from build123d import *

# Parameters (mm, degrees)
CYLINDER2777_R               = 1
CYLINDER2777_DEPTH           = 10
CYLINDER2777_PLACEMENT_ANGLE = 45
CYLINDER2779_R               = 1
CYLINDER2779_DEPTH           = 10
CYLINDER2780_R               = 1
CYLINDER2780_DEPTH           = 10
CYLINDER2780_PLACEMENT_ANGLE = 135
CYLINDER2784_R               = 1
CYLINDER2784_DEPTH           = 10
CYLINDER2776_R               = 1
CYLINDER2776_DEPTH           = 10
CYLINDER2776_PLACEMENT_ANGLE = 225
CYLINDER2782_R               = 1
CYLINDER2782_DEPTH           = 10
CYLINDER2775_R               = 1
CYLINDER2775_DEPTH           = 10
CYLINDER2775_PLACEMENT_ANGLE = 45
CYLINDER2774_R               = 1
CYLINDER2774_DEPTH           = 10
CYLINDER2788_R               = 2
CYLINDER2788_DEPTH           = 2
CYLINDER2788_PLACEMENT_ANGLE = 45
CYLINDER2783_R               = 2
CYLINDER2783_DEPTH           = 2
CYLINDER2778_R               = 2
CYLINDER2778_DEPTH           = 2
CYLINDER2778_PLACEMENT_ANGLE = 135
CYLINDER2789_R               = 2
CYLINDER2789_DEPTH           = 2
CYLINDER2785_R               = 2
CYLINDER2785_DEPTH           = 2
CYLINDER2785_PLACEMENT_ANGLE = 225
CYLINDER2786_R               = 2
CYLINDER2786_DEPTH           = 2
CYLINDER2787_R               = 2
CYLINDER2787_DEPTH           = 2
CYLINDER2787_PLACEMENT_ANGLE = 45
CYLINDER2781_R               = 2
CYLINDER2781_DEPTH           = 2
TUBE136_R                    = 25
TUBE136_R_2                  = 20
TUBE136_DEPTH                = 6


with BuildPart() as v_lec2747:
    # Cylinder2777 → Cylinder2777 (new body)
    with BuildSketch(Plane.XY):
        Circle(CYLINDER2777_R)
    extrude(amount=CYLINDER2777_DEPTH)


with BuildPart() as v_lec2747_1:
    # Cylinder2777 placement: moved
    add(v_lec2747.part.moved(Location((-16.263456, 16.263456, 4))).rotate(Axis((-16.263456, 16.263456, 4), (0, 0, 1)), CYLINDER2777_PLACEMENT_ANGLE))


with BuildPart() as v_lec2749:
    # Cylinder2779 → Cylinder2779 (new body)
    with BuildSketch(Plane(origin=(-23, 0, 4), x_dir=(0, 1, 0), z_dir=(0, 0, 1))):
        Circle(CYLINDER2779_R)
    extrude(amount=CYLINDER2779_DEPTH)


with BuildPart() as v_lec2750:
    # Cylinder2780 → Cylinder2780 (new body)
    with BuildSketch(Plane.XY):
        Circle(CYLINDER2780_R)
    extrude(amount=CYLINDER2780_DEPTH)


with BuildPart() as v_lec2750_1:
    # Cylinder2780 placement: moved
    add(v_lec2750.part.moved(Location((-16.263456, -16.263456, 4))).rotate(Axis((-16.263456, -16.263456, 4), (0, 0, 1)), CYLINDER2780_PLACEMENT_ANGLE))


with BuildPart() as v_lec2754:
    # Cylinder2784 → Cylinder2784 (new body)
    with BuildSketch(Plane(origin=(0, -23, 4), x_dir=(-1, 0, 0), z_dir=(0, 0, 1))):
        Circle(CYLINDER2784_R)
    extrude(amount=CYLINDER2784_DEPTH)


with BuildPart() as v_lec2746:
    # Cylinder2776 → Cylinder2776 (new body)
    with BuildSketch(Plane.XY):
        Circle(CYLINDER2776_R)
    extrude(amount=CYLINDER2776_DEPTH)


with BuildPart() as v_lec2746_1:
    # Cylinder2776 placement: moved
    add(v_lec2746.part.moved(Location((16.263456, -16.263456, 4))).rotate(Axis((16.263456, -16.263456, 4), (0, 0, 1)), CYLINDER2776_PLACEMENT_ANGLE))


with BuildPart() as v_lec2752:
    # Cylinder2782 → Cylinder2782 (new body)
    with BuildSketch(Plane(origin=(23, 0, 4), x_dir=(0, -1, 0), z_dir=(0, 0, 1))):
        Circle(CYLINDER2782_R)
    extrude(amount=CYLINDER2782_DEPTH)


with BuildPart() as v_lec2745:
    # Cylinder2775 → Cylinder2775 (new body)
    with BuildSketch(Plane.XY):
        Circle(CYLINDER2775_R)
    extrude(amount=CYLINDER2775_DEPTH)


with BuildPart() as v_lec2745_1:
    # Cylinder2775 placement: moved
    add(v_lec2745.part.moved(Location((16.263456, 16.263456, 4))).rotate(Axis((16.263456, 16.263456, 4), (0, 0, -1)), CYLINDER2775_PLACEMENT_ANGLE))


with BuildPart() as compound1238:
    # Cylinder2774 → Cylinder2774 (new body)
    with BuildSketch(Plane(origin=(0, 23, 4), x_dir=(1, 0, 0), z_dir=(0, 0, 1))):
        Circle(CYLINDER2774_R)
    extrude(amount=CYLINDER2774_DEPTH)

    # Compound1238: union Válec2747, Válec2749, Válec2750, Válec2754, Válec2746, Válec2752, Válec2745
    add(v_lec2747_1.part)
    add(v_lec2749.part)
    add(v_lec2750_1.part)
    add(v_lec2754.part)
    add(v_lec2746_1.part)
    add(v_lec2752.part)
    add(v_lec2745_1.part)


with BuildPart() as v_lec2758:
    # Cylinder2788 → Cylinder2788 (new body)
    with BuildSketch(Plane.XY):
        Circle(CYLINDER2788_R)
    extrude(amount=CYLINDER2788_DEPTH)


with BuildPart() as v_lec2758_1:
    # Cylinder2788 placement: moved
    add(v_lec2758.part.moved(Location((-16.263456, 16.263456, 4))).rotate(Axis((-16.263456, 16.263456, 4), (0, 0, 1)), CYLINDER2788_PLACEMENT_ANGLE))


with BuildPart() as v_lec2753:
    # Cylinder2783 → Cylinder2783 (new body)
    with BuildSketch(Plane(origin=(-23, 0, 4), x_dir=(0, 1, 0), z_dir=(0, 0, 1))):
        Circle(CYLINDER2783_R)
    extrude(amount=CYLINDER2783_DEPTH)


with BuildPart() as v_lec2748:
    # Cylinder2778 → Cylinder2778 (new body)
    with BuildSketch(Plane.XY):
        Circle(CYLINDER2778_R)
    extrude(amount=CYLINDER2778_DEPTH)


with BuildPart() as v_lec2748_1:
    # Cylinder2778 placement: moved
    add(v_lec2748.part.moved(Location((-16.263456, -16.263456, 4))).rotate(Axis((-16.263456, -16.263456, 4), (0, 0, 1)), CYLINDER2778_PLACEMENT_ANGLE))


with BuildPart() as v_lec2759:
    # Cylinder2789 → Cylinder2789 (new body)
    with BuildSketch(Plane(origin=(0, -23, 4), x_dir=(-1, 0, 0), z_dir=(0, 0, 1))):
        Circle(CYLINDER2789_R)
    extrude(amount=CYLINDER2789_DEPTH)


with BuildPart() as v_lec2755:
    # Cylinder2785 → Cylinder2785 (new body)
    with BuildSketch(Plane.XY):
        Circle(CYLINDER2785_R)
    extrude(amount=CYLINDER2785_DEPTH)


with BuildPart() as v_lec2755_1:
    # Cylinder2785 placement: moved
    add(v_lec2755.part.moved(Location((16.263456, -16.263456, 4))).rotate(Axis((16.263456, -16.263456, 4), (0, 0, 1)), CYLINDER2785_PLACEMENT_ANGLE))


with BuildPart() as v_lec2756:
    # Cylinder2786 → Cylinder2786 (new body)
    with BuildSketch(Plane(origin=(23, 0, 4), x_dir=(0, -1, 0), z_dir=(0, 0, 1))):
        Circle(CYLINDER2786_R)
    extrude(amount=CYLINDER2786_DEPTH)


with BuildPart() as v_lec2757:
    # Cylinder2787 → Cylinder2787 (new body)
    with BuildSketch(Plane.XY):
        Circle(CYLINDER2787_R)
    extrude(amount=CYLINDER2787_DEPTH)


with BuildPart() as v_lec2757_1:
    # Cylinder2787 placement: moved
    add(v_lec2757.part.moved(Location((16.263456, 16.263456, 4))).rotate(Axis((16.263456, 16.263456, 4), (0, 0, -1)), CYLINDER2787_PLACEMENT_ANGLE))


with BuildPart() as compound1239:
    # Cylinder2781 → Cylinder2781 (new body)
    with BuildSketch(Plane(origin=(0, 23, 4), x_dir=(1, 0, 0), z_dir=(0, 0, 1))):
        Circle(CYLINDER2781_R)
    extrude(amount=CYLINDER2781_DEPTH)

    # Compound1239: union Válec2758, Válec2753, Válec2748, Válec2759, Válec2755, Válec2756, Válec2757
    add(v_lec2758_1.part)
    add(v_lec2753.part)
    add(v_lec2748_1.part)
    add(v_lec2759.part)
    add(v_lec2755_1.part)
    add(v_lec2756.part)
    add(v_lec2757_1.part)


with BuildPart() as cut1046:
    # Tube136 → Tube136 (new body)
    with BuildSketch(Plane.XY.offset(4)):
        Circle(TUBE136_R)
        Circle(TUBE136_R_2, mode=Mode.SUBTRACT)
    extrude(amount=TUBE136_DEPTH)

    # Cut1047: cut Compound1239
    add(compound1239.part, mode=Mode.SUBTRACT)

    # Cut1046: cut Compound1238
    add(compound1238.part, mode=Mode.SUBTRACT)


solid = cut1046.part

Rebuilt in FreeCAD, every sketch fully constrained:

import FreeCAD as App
import Part
import Sketcher
Q = App.Units.Quantity

doc = App.newDocument("Part")
params = doc.addObject("Spreadsheet::Sheet", "Params")
for row, (alias, value) in enumerate([
    ("sketch1_diameter", "2 mm"),
    ("pad1_length", "10 mm"),
    ("sketch2_diameter", "2 mm"),
    ("pad2_length", "10 mm"),
    ("sketch3_diameter", "2 mm"),
    ("pad3_length", "10 mm"),
    ("sketch4_diameter", "2 mm"),
    ("pad4_length", "10 mm"),
    ("sketch5_diameter", "2 mm"),
    ("pad5_length", "10 mm"),
    ("sketch6_diameter", "2 mm"),
    ("pad6_length", "10 mm"),
    ("sketch7_diameter", "2 mm"),
    ("pad7_length", "10 mm"),
    ("sketch8_diameter", "2 mm"),
    ("pad8_length", "10 mm"),
    ("sketch9_diameter", "4 mm"),
    ("pad9_length", "2 mm"),
    ("sketch10_diameter", "4 mm"),
    ("pad10_length", "2 mm"),
    ("sketch11_diameter", "4 mm"),
    ("pad11_length", "2 mm"),
    ("sketch12_diameter", "4 mm"),
    ("pad12_length", "2 mm"),
    ("sketch13_diameter", "4 mm"),
    ("pad13_length", "2 mm"),
    ("sketch14_diameter", "4 mm"),
    ("pad14_length", "2 mm"),
    ("sketch15_diameter", "4 mm"),
    ("pad15_length", "2 mm"),
    ("sketch16_diameter", "4 mm"),
    ("pad16_length", "2 mm"),
    ("sketch17_diameter", "50 mm"),
    ("sketch17_diameter2", "40 mm"),
    ("pad17_length", "6 mm"),
], start=1):
    params.set(f"A{row}", alias)
    params.set(f"B{row}", "=" + value)
    params.setAlias(f"B{row}", alias)

body = doc.addObject("PartDesign::Body", "Body")

sketch1 = body.newObject("Sketcher::SketchObject", "Sketch")
sketch1.AttachmentSupport = (doc.getObject("XY_Plane"), [""])
sketch1.MapMode = "FlatFace"
sketch1.addGeometry(Part.Circle(App.Vector(0, 0, 0), App.Vector(0, 0, 1), 1), False)
sketch1.addConstraint([
    Sketcher.Constraint("Coincident", 0, 3, -1, 1),
    Sketcher.Constraint("Diameter", 0, Q("2 mm")),
])
sketch1.setExpression("Constraints[1]", "Params.sketch1_diameter")
pad1 = body.newObject("PartDesign::Pad", "Pad")
pad1.Profile = sketch1
pad1.setExpression("Length", "Params.pad1_length")
body2 = doc.addObject("PartDesign::Body", "Body001")
doc.recompute()

body.Placement = App.Placement(App.Vector(-16.263456, 16.263456, 4), App.Rotation(App.Vector(0, 0, 1), 45))
boolean = body2.newObject("PartDesign::Boolean", "Boolean")
boolean.Type = "Fuse"
boolean.addObjects([body])
body3 = doc.addObject("PartDesign::Body", "Body002")

sketch2 = body3.newObject("Sketcher::SketchObject", "Sketch001")
sketch2.AttachmentSupport = (doc.getObject("XY_Plane002"), [""])
sketch2.MapMode = "FlatFace"
sketch2.AttachmentOffset = App.Placement(App.Vector(0, 0, 4), App.Rotation())
sketch2.addGeometry(Part.Circle(App.Vector(-23, 0, 0), App.Vector(0, 0, 1), 1), False)
sketch2.addConstraint([
    Sketcher.Constraint("PointOnObject", 0, 3, -1),
    Sketcher.Constraint("Diameter", 0, Q("2 mm")),
    Sketcher.Constraint("DistanceX", 0, 3, -1, 1, Q("23 mm")),
])
sketch2.setExpression("Constraints[1]", "Params.sketch2_diameter")
pad2 = body3.newObject("PartDesign::Pad", "Pad001")
pad2.Profile = sketch2
pad2.setExpression("Length", "Params.pad2_length")
body4 = doc.addObject("PartDesign::Body", "Body003")

sketch3 = body4.newObject("Sketcher::SketchObject", "Sketch002")
sketch3.AttachmentSupport = (doc.getObject("XY_Plane003"), [""])
sketch3.MapMode = "FlatFace"
sketch3.addGeometry(Part.Circle(App.Vector(0, 0, 0), App.Vector(0, 0, 1), 1), False)
sketch3.addConstraint([
    Sketcher.Constraint("Coincident", 0, 3, -1, 1),
    Sketcher.Constraint("Diameter", 0, Q("2 mm")),
])
sketch3.setExpression("Constraints[1]", "Params.sketch3_diameter")
pad3 = body4.newObject("PartDesign::Pad", "Pad002")
pad3.Profile = sketch3
pad3.setExpression("Length", "Params.pad3_length")
body5 = doc.addObject("PartDesign::Body", "Body004")
doc.recompute()

body4.Placement = App.Placement(App.Vector(-16.263456, -16.263456, 4), App.Rotation(App.Vector(0, 0, 1), 135))
boolean2 = body5.newObject("PartDesign::Boolean", "Boolean001")
boolean2.Type = "Fuse"
boolean2.addObjects([body4])
body6 = doc.addObject("PartDesign::Body", "Body005")

sketch4 = body6.newObject("Sketcher::SketchObject", "Sketch003")
sketch4.AttachmentSupport = (doc.getObject("XY_Plane005"), [""])
sketch4.MapMode = "FlatFace"
sketch4.AttachmentOffset = App.Placement(App.Vector(0, 0, 4), App.Rotation())
sketch4.addGeometry(Part.Circle(App.Vector(0, -23, 0), App.Vector(0, 0, 1), 1), False)
sketch4.addConstraint([
    Sketcher.Constraint("PointOnObject", 0, 3, -2),
    Sketcher.Constraint("Diameter", 0, Q("2 mm")),
    Sketcher.Constraint("DistanceY", 0, 3, -1, 1, Q("23 mm")),
])
sketch4.setExpression("Constraints[1]", "Params.sketch4_diameter")
pad4 = body6.newObject("PartDesign::Pad", "Pad003")
pad4.Profile = sketch4
pad4.setExpression("Length", "Params.pad4_length")
body7 = doc.addObject("PartDesign::Body", "Body006")

sketch5 = body7.newObject("Sketcher::SketchObject", "Sketch004")
sketch5.AttachmentSupport = (doc.getObject("XY_Plane006"), [""])
sketch5.MapMode = "FlatFace"
sketch5.addGeometry(Part.Circle(App.Vector(0, 0, 0), App.Vector(0, 0, 1), 1), False)
sketch5.addConstraint([
    Sketcher.Constraint("Coincident", 0, 3, -1, 1),
    Sketcher.Constraint("Diameter", 0, Q("2 mm")),
])
sketch5.setExpression("Constraints[1]", "Params.sketch5_diameter")
pad5 = body7.newObject("PartDesign::Pad", "Pad004")
pad5.Profile = sketch5
pad5.setExpression("Length", "Params.pad5_length")
body8 = doc.addObject("PartDesign::Body", "Body007")
doc.recompute()

body7.Placement = App.Placement(App.Vector(16.263456, -16.263456, 4), App.Rotation(App.Vector(0, 0, 1), 225))
boolean3 = body8.newObject("PartDesign::Boolean", "Boolean002")
boolean3.Type = "Fuse"
boolean3.addObjects([body7])
body9 = doc.addObject("PartDesign::Body", "Body008")

sketch6 = body9.newObject("Sketcher::SketchObject", "Sketch005")
sketch6.AttachmentSupport = (doc.getObject("XY_Plane008"), [""])
sketch6.MapMode = "FlatFace"
sketch6.AttachmentOffset = App.Placement(App.Vector(0, 0, 4), App.Rotation())
sketch6.addGeometry(Part.Circle(App.Vector(23, 0, 0), App.Vector(0, 0, 1), 1), False)
sketch6.addConstraint([
    Sketcher.Constraint("PointOnObject", 0, 3, -1),
    Sketcher.Constraint("Diameter", 0, Q("2 mm")),
    Sketcher.Constraint("DistanceX", -1, 1, 0, 3, Q("23 mm")),
])
sketch6.setExpression("Constraints[1]", "Params.sketch6_diameter")
pad6 = body9.newObject("PartDesign::Pad", "Pad005")
pad6.Profile = sketch6
pad6.setExpression("Length", "Params.pad6_length")
body10 = doc.addObject("PartDesign::Body", "Body009")

sketch7 = body10.newObject("Sketcher::SketchObject", "Sketch006")
sketch7.AttachmentSupport = (doc.getObject("XY_Plane009"), [""])
sketch7.MapMode = "FlatFace"
sketch7.addGeometry(Part.Circle(App.Vector(0, 0, 0), App.Vector(0, 0, 1), 1), False)
sketch7.addConstraint([
    Sketcher.Constraint("Coincident", 0, 3, -1, 1),
    Sketcher.Constraint("Diameter", 0, Q("2 mm")),
])
sketch7.setExpression("Constraints[1]", "Params.sketch7_diameter")
pad7 = body10.newObject("PartDesign::Pad", "Pad006")
pad7.Profile = sketch7
pad7.setExpression("Length", "Params.pad7_length")
body11 = doc.addObject("PartDesign::Body", "Body010")
doc.recompute()

body10.Placement = App.Placement(App.Vector(16.263456, 16.263456, 4), App.Rotation(App.Vector(0, 0, -1), 45))
boolean4 = body11.newObject("PartDesign::Boolean", "Boolean003")
boolean4.Type = "Fuse"
boolean4.addObjects([body10])
body12 = doc.addObject("PartDesign::Body", "Body011")
body12.AllowCompound = True

sketch8 = body12.newObject("Sketcher::SketchObject", "Sketch007")
sketch8.AttachmentSupport = (doc.getObject("XY_Plane011"), [""])
sketch8.MapMode = "FlatFace"
sketch8.AttachmentOffset = App.Placement(App.Vector(0, 0, 4), App.Rotation())
sketch8.addGeometry(Part.Circle(App.Vector(0, 23, 0), App.Vector(0, 0, 1), 1), False)
sketch8.addConstraint([
    Sketcher.Constraint("PointOnObject", 0, 3, -2),
    Sketcher.Constraint("Diameter", 0, Q("2 mm")),
    Sketcher.Constraint("DistanceY", -1, 1, 0, 3, Q("23 mm")),
])
sketch8.setExpression("Constraints[1]", "Params.sketch8_diameter")
pad8 = body12.newObject("PartDesign::Pad", "Pad007")
pad8.Profile = sketch8
pad8.setExpression("Length", "Params.pad8_length")
doc.recompute()

boolean5 = body12.newObject("PartDesign::Boolean", "Boolean004")
boolean5.Type = "Fuse"
boolean5.addObjects([body2])
doc.recompute()

boolean6 = body12.newObject("PartDesign::Boolean", "Boolean005")
boolean6.Type = "Fuse"
boolean6.addObjects([body3])
doc.recompute()

boolean7 = body12.newObject("PartDesign::Boolean", "Boolean006")
boolean7.Type = "Fuse"
boolean7.addObjects([body5])
doc.recompute()

boolean8 = body12.newObject("PartDesign::Boolean", "Boolean007")
boolean8.Type = "Fuse"
boolean8.addObjects([body6])
doc.recompute()

boolean9 = body12.newObject("PartDesign::Boolean", "Boolean008")
boolean9.Type = "Fuse"
boolean9.addObjects([body8])
doc.recompute()

boolean10 = body12.newObject("PartDesign::Boolean", "Boolean009")
boolean10.Type = "Fuse"
boolean10.addObjects([body9])
doc.recompute()

boolean11 = body12.newObject("PartDesign::Boolean", "Boolean010")
boolean11.Type = "Fuse"
boolean11.addObjects([body11])
body13 = doc.addObject("PartDesign::Body", "Body012")

sketch9 = body13.newObject("Sketcher::SketchObject", "Sketch008")
sketch9.AttachmentSupport = (doc.getObject("XY_Plane012"), [""])
sketch9.MapMode = "FlatFace"
sketch9.addGeometry(Part.Circle(App.Vector(0, 0, 0), App.Vector(0, 0, 1), 2), False)
sketch9.addConstraint([
    Sketcher.Constraint("Coincident", 0, 3, -1, 1),
    Sketcher.Constraint("Diameter", 0, Q("4 mm")),
])
sketch9.setExpression("Constraints[1]", "Params.sketch9_diameter")
pad9 = body13.newObject("PartDesign::Pad", "Pad008")
pad9.Profile = sketch9
pad9.setExpression("Length", "Params.pad9_length")
body14 = doc.addObject("PartDesign::Body", "Body013")
doc.recompute()

body13.Placement = App.Placement(App.Vector(-16.263456, 16.263456, 4), App.Rotation(App.Vector(0, 0, 1), 45))
boolean12 = body14.newObject("PartDesign::Boolean", "Boolean011")
boolean12.Type = "Fuse"
boolean12.addObjects([body13])
body15 = doc.addObject("PartDesign::Body", "Body014")

sketch10 = body15.newObject("Sketcher::SketchObject", "Sketch009")
sketch10.AttachmentSupport = (doc.getObject("XY_Plane014"), [""])
sketch10.MapMode = "FlatFace"
sketch10.AttachmentOffset = App.Placement(App.Vector(0, 0, 4), App.Rotation())
sketch10.addGeometry(Part.Circle(App.Vector(-23, 0, 0), App.Vector(0, 0, 1), 2), False)
sketch10.addConstraint([
    Sketcher.Constraint("PointOnObject", 0, 3, -1),
    Sketcher.Constraint("Diameter", 0, Q("4 mm")),
    Sketcher.Constraint("DistanceX", 0, 3, -1, 1, Q("23 mm")),
])
sketch10.setExpression("Constraints[1]", "Params.sketch10_diameter")
pad10 = body15.newObject("PartDesign::Pad", "Pad009")
pad10.Profile = sketch10
pad10.setExpression("Length", "Params.pad10_length")
body16 = doc.addObject("PartDesign::Body", "Body015")

sketch11 = body16.newObject("Sketcher::SketchObject", "Sketch010")
sketch11.AttachmentSupport = (doc.getObject("XY_Plane015"), [""])
sketch11.MapMode = "FlatFace"
sketch11.addGeometry(Part.Circle(App.Vector(0, 0, 0), App.Vector(0, 0, 1), 2), False)
sketch11.addConstraint([
    Sketcher.Constraint("Coincident", 0, 3, -1, 1),
    Sketcher.Constraint("Diameter", 0, Q("4 mm")),
])
sketch11.setExpression("Constraints[1]", "Params.sketch11_diameter")
pad11 = body16.newObject("PartDesign::Pad", "Pad010")
pad11.Profile = sketch11
pad11.setExpression("Length", "Params.pad11_length")
body17 = doc.addObject("PartDesign::Body", "Body016")
doc.recompute()

body16.Placement = App.Placement(App.Vector(-16.263456, -16.263456, 4), App.Rotation(App.Vector(0, 0, 1), 135))
boolean13 = body17.newObject("PartDesign::Boolean", "Boolean012")
boolean13.Type = "Fuse"
boolean13.addObjects([body16])
body18 = doc.addObject("PartDesign::Body", "Body017")

sketch12 = body18.newObject("Sketcher::SketchObject", "Sketch011")
sketch12.AttachmentSupport = (doc.getObject("XY_Plane017"), [""])
sketch12.MapMode = "FlatFace"
sketch12.AttachmentOffset = App.Placement(App.Vector(0, 0, 4), App.Rotation())
sketch12.addGeometry(Part.Circle(App.Vector(0, -23, 0), App.Vector(0, 0, 1), 2), False)
sketch12.addConstraint([
    Sketcher.Constraint("PointOnObject", 0, 3, -2),
    Sketcher.Constraint("Diameter", 0, Q("4 mm")),
    Sketcher.Constraint("DistanceY", 0, 3, -1, 1, Q("23 mm")),
])
sketch12.setExpression("Constraints[1]", "Params.sketch12_diameter")
pad12 = body18.newObject("PartDesign::Pad", "Pad011")
pad12.Profile = sketch12
pad12.setExpression("Length", "Params.pad12_length")
body19 = doc.addObject("PartDesign::Body", "Body018")

sketch13 = body19.newObject("Sketcher::SketchObject", "Sketch012")
sketch13.AttachmentSupport = (doc.getObject("XY_Plane018"), [""])
sketch13.MapMode = "FlatFace"
sketch13.addGeometry(Part.Circle(App.Vector(0, 0, 0), App.Vector(0, 0, 1), 2), False)
sketch13.addConstraint([
    Sketcher.Constraint("Coincident", 0, 3, -1, 1),
    Sketcher.Constraint("Diameter", 0, Q("4 mm")),
])
sketch13.setExpression("Constraints[1]", "Params.sketch13_diameter")
pad13 = body19.newObject("PartDesign::Pad", "Pad012")
pad13.Profile = sketch13
pad13.setExpression("Length", "Params.pad13_length")
body20 = doc.addObject("PartDesign::Body", "Body019")
doc.recompute()

body19.Placement = App.Placement(App.Vector(16.263456, -16.263456, 4), App.Rotation(App.Vector(0, 0, 1), 225))
boolean14 = body20.newObject("PartDesign::Boolean", "Boolean013")
boolean14.Type = "Fuse"
boolean14.addObjects([body19])
body21 = doc.addObject("PartDesign::Body", "Body020")

sketch14 = body21.newObject("Sketcher::SketchObject", "Sketch013")
sketch14.AttachmentSupport = (doc.getObject("XY_Plane020"), [""])
sketch14.MapMode = "FlatFace"
sketch14.AttachmentOffset = App.Placement(App.Vector(0, 0, 4), App.Rotation())
sketch14.addGeometry(Part.Circle(App.Vector(23, 0, 0), App.Vector(0, 0, 1), 2), False)
sketch14.addConstraint([
    Sketcher.Constraint("PointOnObject", 0, 3, -1),
    Sketcher.Constraint("Diameter", 0, Q("4 mm")),
    Sketcher.Constraint("DistanceX", -1, 1, 0, 3, Q("23 mm")),
])
sketch14.setExpression("Constraints[1]", "Params.sketch14_diameter")
pad14 = body21.newObject("PartDesign::Pad", "Pad013")
pad14.Profile = sketch14
pad14.setExpression("Length", "Params.pad14_length")
body22 = doc.addObject("PartDesign::Body", "Body021")

sketch15 = body22.newObject("Sketcher::SketchObject", "Sketch014")
sketch15.AttachmentSupport = (doc.getObject("XY_Plane021"), [""])
sketch15.MapMode = "FlatFace"
sketch15.addGeometry(Part.Circle(App.Vector(0, 0, 0), App.Vector(0, 0, 1), 2), False)
sketch15.addConstraint([
    Sketcher.Constraint("Coincident", 0, 3, -1, 1),
    Sketcher.Constraint("Diameter", 0, Q("4 mm")),
])
sketch15.setExpression("Constraints[1]", "Params.sketch15_diameter")
pad15 = body22.newObject("PartDesign::Pad", "Pad014")
pad15.Profile = sketch15
pad15.setExpression("Length", "Params.pad15_length")
body23 = doc.addObject("PartDesign::Body", "Body022")
doc.recompute()

body22.Placement = App.Placement(App.Vector(16.263456, 16.263456, 4), App.Rotation(App.Vector(0, 0, -1), 45))
boolean15 = body23.newObject("PartDesign::Boolean", "Boolean014")
boolean15.Type = "Fuse"
boolean15.addObjects([body22])
body24 = doc.addObject("PartDesign::Body", "Body023")
body24.AllowCompound = True

sketch16 = body24.newObject("Sketcher::SketchObject", "Sketch015")
sketch16.AttachmentSupport = (doc.getObject("XY_Plane023"), [""])
sketch16.MapMode = "FlatFace"
sketch16.AttachmentOffset = App.Placement(App.Vector(0, 0, 4), App.Rotation())
sketch16.addGeometry(Part.Circle(App.Vector(0, 23, 0), App.Vector(0, 0, 1), 2), False)
sketch16.addConstraint([
    Sketcher.Constraint("PointOnObject", 0, 3, -2),
    Sketcher.Constraint("Diameter", 0, Q("4 mm")),
    Sketcher.Constraint("DistanceY", -1, 1, 0, 3, Q("23 mm")),
])
sketch16.setExpression("Constraints[1]", "Params.sketch16_diameter")
pad16 = body24.newObject("PartDesign::Pad", "Pad015")
pad16.Profile = sketch16
pad16.setExpression("Length", "Params.pad16_length")
doc.recompute()

boolean16 = body24.newObject("PartDesign::Boolean", "Boolean015")
boolean16.Type = "Fuse"
boolean16.addObjects([body14])
doc.recompute()

boolean17 = body24.newObject("PartDesign::Boolean", "Boolean016")
boolean17.Type = "Fuse"
boolean17.addObjects([body15])
doc.recompute()

boolean18 = body24.newObject("PartDesign::Boolean", "Boolean017")
boolean18.Type = "Fuse"
boolean18.addObjects([body17])
doc.recompute()

boolean19 = body24.newObject("PartDesign::Boolean", "Boolean018")
boolean19.Type = "Fuse"
boolean19.addObjects([body18])
doc.recompute()

boolean20 = body24.newObject("PartDesign::Boolean", "Boolean019")
boolean20.Type = "Fuse"
boolean20.addObjects([body20])
doc.recompute()

boolean21 = body24.newObject("PartDesign::Boolean", "Boolean020")
boolean21.Type = "Fuse"
boolean21.addObjects([body21])
doc.recompute()

boolean22 = body24.newObject("PartDesign::Boolean", "Boolean021")
boolean22.Type = "Fuse"
boolean22.addObjects([body23])
body25 = doc.addObject("PartDesign::Body", "Body024")

sketch17 = body25.newObject("Sketcher::SketchObject", "Sketch016")
sketch17.AttachmentSupport = (doc.getObject("XY_Plane024"), [""])
sketch17.MapMode = "FlatFace"
sketch17.AttachmentOffset = App.Placement(App.Vector(0, 0, 4), App.Rotation())
sketch17.addGeometry([
    Part.Circle(App.Vector(0, 0, 0), App.Vector(0, 0, 1), 25),
    Part.Circle(App.Vector(0, 0, 0), App.Vector(0, 0, 1), 20),
], False)
sketch17.addConstraint([
    Sketcher.Constraint("Coincident", 0, 3, -1, 1),
    Sketcher.Constraint("Coincident", 1, 3, -1, 1),
    Sketcher.Constraint("Diameter", 0, Q("50 mm")),
    Sketcher.Constraint("Diameter", 1, Q("40 mm")),
])
sketch17.setExpression("Constraints[2]", "Params.sketch17_diameter")
sketch17.setExpression("Constraints[3]", "Params.sketch17_diameter2")
pad17 = body25.newObject("PartDesign::Pad", "Pad016")
pad17.Profile = sketch17
pad17.setExpression("Length", "Params.pad17_length")
doc.recompute()

boolean23 = body25.newObject("PartDesign::Boolean", "Boolean022")
boolean23.Type = "Cut"
boolean23.addObjects([body24])
doc.recompute()

boolean24 = body25.newObject("PartDesign::Boolean", "Boolean023")
boolean24.Type = "Cut"
boolean24.addObjects([body12])

doc.recompute()
